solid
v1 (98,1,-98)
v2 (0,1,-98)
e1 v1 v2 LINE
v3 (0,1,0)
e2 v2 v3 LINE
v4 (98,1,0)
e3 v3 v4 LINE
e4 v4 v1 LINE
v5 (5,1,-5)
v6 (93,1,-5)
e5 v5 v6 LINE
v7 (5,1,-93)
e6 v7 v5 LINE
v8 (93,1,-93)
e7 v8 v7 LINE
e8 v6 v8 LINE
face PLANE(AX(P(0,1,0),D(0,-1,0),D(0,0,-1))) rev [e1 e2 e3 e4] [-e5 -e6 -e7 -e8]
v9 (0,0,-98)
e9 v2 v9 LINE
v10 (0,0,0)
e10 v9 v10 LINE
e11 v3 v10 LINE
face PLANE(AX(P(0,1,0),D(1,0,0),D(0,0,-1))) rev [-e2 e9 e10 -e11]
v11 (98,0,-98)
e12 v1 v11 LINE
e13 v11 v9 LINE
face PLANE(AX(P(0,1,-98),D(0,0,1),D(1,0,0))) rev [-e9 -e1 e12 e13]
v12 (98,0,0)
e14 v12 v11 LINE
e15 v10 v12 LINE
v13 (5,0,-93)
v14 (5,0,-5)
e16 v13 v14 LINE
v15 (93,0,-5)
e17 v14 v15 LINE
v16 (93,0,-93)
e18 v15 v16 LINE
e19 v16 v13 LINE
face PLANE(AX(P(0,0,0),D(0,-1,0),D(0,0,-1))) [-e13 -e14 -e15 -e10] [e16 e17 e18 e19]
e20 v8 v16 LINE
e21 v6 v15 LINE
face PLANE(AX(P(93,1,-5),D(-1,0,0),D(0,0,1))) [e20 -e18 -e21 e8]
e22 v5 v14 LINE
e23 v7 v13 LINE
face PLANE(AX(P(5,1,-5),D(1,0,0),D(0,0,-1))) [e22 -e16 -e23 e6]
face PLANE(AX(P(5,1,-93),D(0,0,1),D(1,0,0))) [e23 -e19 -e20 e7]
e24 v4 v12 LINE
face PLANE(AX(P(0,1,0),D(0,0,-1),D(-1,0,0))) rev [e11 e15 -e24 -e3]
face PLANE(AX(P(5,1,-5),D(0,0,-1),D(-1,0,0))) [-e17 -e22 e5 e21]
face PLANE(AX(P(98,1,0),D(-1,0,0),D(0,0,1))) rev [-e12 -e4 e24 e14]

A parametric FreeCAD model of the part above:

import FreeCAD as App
import Part
import Sketcher
from FreeCAD import Vector

doc = App.newDocument("Part")
body = doc.addObject("PartDesign::Body", "Body")

# Sketch on XZ plane
sketch1 = doc.addObject("Sketcher::SketchObject", "Sketch")
body.addObject(sketch1)
sketch1.AttachmentSupport = (doc.XZ_Plane, [""])
sketch1.MapMode = "FlatFace"
sketch1.addGeometry([
    Part.LineSegment(Vector(0, -98, 0), Vector(0, 0, 0)),  # 0
    Part.LineSegment(Vector(0, 0, 0), Vector(98, 0, 0)),  # 1
    Part.LineSegment(Vector(98, 0, 0), Vector(98, -98, 0)),  # 2
    Part.LineSegment(Vector(98, -98, 0), Vector(0, -98, 0)),  # 3
    Part.LineSegment(Vector(93, -5, 0), Vector(5, -5, 0)),  # 4
    Part.LineSegment(Vector(5, -5, 0), Vector(5, -93, 0)),  # 5
    Part.LineSegment(Vector(5, -93, 0), Vector(93, -93, 0)),  # 6
    Part.LineSegment(Vector(93, -93, 0), Vector(93, -5, 0)),  # 7
], False)
sketch1.addConstraint([
    Sketcher.Constraint("Coincident", 0, 2, 1, 1),
    Sketcher.Constraint("Coincident", 1, 2, 2, 1),
    Sketcher.Constraint("Coincident", 2, 2, 3, 1),
    Sketcher.Constraint("Coincident", 3, 2, 0, 1),
    Sketcher.Constraint("Coincident", 4, 2, 5, 1),
    Sketcher.Constraint("Coincident", 5, 2, 6, 1),
    Sketcher.Constraint("Coincident", 6, 2, 7, 1),
    Sketcher.Constraint("Coincident", 7, 2, 4, 1),
    Sketcher.Constraint("Vertical", 0),
    Sketcher.Constraint("Horizontal", 1),
    Sketcher.Constraint("Vertical", 2),
    Sketcher.Constraint("Horizontal", 3),
    Sketcher.Constraint("Horizontal", 4),
    Sketcher.Constraint("Vertical", 5),
    Sketcher.Constraint("Horizontal", 6),
    Sketcher.Constraint("Vertical", 7),
    Sketcher.Constraint("Coincident", 0, 2, -1, 1),
    Sketcher.Constraint("Equal", 3, 0),
    Sketcher.Constraint("Equal", 6, 5),
    Sketcher.Constraint("DistanceX", 1, 1, 1, 2, 98.0),
    Sketcher.Constraint("DistanceX", 4, 2, 4, 1, 88.0),
    Sketcher.Constraint("DistanceX", -1, 1, 4, 2, 5.0),
    Sketcher.Constraint("DistanceY", 4, 2, -1, 1, 5.0),
])
pad1 = doc.addObject("PartDesign::Pad", "Pad")
body.addObject(pad1)
pad1.Profile = sketch1
pad1.Length = 1
pad1.Reversed = True

doc.recompute()
